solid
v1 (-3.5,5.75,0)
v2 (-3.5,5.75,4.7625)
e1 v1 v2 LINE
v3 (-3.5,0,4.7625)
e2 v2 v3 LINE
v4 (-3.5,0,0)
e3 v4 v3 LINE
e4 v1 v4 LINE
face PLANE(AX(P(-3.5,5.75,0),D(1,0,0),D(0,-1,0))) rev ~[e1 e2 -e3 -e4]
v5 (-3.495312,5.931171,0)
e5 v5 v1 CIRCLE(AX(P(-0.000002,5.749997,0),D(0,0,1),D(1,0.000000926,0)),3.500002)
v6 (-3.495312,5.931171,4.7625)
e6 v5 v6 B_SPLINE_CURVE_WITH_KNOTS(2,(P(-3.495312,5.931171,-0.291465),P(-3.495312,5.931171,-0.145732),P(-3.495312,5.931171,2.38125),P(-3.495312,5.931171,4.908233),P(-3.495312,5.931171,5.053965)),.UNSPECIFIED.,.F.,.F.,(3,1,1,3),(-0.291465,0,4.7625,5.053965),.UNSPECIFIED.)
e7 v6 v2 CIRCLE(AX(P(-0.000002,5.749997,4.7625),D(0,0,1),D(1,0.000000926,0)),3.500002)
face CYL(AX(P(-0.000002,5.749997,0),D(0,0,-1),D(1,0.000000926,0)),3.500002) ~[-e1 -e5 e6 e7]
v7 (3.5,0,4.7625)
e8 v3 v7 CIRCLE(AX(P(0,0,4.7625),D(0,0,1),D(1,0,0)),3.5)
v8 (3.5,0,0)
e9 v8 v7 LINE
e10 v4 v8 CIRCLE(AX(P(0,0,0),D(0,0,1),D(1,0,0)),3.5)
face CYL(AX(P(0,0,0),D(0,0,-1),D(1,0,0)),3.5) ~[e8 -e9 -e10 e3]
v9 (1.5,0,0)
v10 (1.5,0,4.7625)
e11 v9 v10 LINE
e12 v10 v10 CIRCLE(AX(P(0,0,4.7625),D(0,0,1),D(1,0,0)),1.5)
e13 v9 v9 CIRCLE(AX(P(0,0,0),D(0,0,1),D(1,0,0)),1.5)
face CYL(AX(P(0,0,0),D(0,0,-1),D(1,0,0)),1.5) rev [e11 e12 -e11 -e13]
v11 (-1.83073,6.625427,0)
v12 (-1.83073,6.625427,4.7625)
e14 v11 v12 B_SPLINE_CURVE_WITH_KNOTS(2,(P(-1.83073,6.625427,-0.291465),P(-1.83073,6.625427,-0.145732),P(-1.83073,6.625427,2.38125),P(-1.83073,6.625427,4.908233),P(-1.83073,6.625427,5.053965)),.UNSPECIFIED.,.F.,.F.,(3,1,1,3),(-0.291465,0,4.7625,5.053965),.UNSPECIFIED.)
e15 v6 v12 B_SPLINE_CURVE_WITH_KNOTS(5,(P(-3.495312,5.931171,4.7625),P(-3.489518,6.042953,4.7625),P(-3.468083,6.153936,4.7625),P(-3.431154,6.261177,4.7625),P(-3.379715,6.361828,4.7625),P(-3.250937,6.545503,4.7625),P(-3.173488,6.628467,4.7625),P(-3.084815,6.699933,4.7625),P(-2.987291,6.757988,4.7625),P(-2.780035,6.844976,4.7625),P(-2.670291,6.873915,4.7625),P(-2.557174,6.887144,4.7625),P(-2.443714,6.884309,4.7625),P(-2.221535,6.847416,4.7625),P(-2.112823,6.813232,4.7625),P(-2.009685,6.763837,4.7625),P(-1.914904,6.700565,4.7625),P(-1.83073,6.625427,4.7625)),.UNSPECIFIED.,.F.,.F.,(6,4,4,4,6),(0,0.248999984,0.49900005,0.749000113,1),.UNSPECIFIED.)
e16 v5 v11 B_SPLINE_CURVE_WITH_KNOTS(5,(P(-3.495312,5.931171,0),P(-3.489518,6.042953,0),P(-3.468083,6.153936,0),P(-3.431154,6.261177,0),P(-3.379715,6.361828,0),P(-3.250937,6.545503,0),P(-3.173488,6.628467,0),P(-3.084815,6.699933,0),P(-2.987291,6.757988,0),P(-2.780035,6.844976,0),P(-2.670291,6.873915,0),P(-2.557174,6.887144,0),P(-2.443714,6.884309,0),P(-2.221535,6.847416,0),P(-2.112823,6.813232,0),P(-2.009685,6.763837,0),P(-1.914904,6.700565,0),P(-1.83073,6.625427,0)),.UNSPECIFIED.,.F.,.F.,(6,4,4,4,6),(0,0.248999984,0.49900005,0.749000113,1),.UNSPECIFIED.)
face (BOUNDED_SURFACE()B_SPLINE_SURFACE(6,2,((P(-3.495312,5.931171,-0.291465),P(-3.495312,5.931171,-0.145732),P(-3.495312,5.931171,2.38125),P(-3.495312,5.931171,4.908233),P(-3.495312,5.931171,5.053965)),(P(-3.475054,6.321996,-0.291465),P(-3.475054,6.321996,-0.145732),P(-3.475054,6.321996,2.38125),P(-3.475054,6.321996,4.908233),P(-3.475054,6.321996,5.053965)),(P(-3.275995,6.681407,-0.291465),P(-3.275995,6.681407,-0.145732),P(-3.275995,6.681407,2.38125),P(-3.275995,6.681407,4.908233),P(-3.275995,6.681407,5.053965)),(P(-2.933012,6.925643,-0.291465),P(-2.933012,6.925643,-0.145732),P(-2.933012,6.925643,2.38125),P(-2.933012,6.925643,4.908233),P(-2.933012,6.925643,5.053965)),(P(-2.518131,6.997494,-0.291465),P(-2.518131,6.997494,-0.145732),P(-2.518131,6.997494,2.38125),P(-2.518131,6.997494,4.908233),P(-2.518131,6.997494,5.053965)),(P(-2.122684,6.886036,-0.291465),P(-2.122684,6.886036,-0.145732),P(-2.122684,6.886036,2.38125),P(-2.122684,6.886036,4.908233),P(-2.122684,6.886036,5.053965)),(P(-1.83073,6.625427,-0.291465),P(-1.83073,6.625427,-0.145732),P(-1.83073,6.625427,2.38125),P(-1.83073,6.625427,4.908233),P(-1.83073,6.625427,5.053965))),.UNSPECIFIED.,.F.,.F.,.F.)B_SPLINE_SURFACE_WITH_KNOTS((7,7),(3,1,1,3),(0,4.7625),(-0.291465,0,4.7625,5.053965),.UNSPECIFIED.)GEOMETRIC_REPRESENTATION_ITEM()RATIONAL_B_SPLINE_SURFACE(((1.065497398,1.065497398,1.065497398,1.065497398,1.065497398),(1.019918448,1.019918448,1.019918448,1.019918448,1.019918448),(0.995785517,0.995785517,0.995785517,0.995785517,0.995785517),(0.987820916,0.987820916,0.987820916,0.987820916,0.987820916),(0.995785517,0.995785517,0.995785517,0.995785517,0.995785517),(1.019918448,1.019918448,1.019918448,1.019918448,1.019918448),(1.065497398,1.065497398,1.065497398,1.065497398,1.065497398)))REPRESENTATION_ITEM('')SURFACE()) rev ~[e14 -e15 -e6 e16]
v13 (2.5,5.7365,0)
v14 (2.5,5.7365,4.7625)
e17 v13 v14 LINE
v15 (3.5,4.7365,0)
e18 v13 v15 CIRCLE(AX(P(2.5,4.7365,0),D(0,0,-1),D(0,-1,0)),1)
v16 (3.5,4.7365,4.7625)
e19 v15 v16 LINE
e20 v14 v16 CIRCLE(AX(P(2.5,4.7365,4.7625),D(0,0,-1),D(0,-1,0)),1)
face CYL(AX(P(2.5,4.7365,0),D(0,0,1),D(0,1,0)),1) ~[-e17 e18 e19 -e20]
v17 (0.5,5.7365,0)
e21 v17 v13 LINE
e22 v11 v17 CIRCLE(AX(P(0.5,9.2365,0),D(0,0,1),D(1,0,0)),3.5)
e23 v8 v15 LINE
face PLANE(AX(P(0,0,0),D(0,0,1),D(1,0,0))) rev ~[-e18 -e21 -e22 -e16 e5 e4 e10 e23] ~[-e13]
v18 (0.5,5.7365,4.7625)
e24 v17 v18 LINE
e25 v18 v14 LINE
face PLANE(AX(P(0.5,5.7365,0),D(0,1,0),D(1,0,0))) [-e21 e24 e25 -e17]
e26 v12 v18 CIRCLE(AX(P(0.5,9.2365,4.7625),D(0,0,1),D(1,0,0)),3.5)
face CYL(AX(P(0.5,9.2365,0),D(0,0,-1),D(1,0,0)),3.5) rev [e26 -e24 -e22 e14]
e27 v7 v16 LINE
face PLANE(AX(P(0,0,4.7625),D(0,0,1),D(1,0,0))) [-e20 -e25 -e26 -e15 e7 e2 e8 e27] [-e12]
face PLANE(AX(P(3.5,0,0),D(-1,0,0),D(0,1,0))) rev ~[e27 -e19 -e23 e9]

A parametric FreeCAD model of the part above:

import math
import FreeCAD as App
import Part
import Sketcher


def edges_at(feature, points):
    """Names of the edges that pass closest to the given points."""
    edges = feature.Shape.Edges
    near = lambda p: min(range(len(edges)), key=lambda i: edges[i].distToShape(Part.Vertex(*p))[0])
    return sorted({f"Edge{near(p) + 1}" for p in points})

doc = App.newDocument("Part")
params = doc.addObject("Spreadsheet::Sheet", "Params")
for row, (alias, value) in enumerate([
    ("sketch1_diameter", "3 mm"),
    ("sketch1_radius", "3.5 mm"),
    ("sketch1_width", "3 mm"),
    ("sketch1_height", "5.75 mm"),
    ("pad1_length", "4.7625 mm"),
    ("fillet_radius", "1 mm"),
    ("fillet2_radius", "1 mm"),
], start=1):
    params.set(f"A{row}", alias)
    params.set(f"B{row}", "=" + value)
    params.setAlias(f"B{row}", alias)

body = doc.addObject("PartDesign::Body", "Body")

# Sketch on XY plane
sketch1 = body.newObject("Sketcher::SketchObject", "Sketch")
sketch1.AttachmentSupport = (doc.getObject("XY_Plane"), [""])
sketch1.MapMode = "FlatFace"
sketch1.addGeometry([
    Part.ArcOfCircle(Part.Circle(App.Vector(0, 0, 0), App.Vector(0, 0, 1), 3.5), math.radians(180), math.radians(360)),  # 0
    Part.LineSegment(App.Vector(3.5, 0, 0), App.Vector(3.5, 5.7, 0)),  # 1
    Part.LineSegment(App.Vector(3.5, 5.7, 0), App.Vector(0.5, 5.7, 0)),  # 2
    Part.ArcOfCircle(Part.Circle(App.Vector(0.5, 9.2, 0), App.Vector(0, 0, 1), 3.5), math.radians(-158), math.radians(-90)),  # 3
    Part.ArcOfCircle(Part.Circle(App.Vector(0, 5.8, 0), App.Vector(0, 0, 1), 3.5), math.radians(142), math.radians(180)),  # 4
    Part.LineSegment(App.Vector(-3.5, 5.8, 0), App.Vector(-3.5, 0, 0)),  # 5
    Part.Circle(App.Vector(0, 0, 0), App.Vector(0, 0, 1), 1.5),  # 6
], False)
sketch1.addConstraint([
    Sketcher.Constraint("Tangent", 0, 2, 1, 1),
    Sketcher.Constraint("Coincident", 1, 2, 2, 1),
    Sketcher.Constraint("Tangent", 2, 2, 3, 2),
    Sketcher.Constraint("Coincident", 3, 1, 4, 1),
    Sketcher.Constraint("Tangent", 4, 2, 5, 1),
    Sketcher.Constraint("Tangent", 5, 2, 0, 1),
    Sketcher.Constraint("Vertical", 1),
    Sketcher.Constraint("Horizontal", 2),
    Sketcher.Constraint("Vertical", 5),
    Sketcher.Constraint("Coincident", 0, 3, -1, 1),
    Sketcher.Constraint("Coincident", 6, 3, -1, 1),
    Sketcher.Constraint("Equal", 0, 3),
    Sketcher.Constraint("Equal", 3, 4),
    Sketcher.Constraint("Diameter", 6, 3.0),
    Sketcher.Constraint("Radius", 0, 3.5),
    Sketcher.Constraint("DistanceX", 2, 2, 2, 1, 3.0),
    Sketcher.Constraint("DistanceY", 5, 2, 5, 1, 5.75),
    Sketcher.Constraint("DistanceY", 1, 1, 1, 2, 5.7365),
])
sketch1.setExpression("Constraints[13]", "Params.sketch1_diameter")
sketch1.setExpression("Constraints[14]", "Params.sketch1_radius")
sketch1.setExpression("Constraints[15]", "Params.sketch1_width")
sketch1.setExpression("Constraints[16]", "Params.sketch1_height")
pad1 = body.newObject("PartDesign::Pad", "Pad")
pad1.Profile = sketch1
pad1.setExpression("Length", "Params.pad1_length")
doc.recompute()

fillet = body.newObject("PartDesign::Fillet", "Fillet")
fillet.Base = (pad1, edges_at(pad1, [(-2.744, 7.923, 2.381)]))
fillet.setExpression("Radius", "Params.fillet_radius")
doc.recompute()

fillet2 = body.newObject("PartDesign::Fillet", "Fillet001")
fillet2.Base = (fillet, edges_at(fillet, [(3.5, 5.737, 2.381)]))
fillet2.setExpression("Radius", "Params.fillet2_radius")

doc.recompute()
